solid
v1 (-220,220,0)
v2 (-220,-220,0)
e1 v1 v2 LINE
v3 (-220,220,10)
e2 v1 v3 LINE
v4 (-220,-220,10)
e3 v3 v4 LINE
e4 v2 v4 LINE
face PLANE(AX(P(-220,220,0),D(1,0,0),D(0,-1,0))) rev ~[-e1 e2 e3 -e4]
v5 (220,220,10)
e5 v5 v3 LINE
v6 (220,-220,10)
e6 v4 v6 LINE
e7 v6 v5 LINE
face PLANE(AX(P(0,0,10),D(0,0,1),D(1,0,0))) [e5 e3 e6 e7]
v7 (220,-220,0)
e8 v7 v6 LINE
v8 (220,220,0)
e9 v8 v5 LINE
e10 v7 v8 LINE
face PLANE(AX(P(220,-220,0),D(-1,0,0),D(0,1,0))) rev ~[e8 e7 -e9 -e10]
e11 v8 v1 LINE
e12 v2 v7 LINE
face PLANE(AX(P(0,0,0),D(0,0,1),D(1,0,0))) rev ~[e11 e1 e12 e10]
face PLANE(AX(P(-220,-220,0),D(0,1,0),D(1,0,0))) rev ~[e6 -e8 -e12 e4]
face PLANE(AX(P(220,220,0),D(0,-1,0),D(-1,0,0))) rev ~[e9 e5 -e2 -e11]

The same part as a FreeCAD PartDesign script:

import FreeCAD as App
import Part
import Sketcher

V = App.Vector

doc = App.newDocument("Part")
body = doc.addObject("PartDesign::Body", "Body")

# Sketch on XY plane
sketch1 = body.newObject("Sketcher::SketchObject", "Sketch")
sketch1.AttachmentSupport = (doc.getObject("XY_Plane"), [""])
sketch1.MapMode = "FlatFace"
sketch1.addGeometry([
    Part.LineSegment(V(-220, 220, 0), V(-220, -220, 0)),
    Part.LineSegment(V(-220, -220, 0), V(220, -220, 0)),
    Part.LineSegment(V(220, -220, 0), V(220, 220, 0)),
    Part.LineSegment(V(220, 220, 0), V(-220, 220, 0)),
], False)
sketch1.addConstraint([
    Sketcher.Constraint("Coincident", 0, 2, 1, 1),
    Sketcher.Constraint("Coincident", 1, 2, 2, 1),
    Sketcher.Constraint("Coincident", 2, 2, 3, 1),
    Sketcher.Constraint("Coincident", 3, 2, 0, 1),
    Sketcher.Constraint("Vertical", 0),
    Sketcher.Constraint("Horizontal", 1),
    Sketcher.Constraint("Vertical", 2),
    Sketcher.Constraint("Horizontal", 3),
    Sketcher.Constraint("Symmetric", 0, 2, 2, 2, -1, 1),
    Sketcher.Constraint("Equal", 3, 0),
    Sketcher.Constraint("DistanceX", 1, 1, 1, 2, 440.0),
])
pad1 = body.newObject("PartDesign::Pad", "Pad")
pad1.Profile = sketch1
pad1.Length = 10

doc.recompute()
